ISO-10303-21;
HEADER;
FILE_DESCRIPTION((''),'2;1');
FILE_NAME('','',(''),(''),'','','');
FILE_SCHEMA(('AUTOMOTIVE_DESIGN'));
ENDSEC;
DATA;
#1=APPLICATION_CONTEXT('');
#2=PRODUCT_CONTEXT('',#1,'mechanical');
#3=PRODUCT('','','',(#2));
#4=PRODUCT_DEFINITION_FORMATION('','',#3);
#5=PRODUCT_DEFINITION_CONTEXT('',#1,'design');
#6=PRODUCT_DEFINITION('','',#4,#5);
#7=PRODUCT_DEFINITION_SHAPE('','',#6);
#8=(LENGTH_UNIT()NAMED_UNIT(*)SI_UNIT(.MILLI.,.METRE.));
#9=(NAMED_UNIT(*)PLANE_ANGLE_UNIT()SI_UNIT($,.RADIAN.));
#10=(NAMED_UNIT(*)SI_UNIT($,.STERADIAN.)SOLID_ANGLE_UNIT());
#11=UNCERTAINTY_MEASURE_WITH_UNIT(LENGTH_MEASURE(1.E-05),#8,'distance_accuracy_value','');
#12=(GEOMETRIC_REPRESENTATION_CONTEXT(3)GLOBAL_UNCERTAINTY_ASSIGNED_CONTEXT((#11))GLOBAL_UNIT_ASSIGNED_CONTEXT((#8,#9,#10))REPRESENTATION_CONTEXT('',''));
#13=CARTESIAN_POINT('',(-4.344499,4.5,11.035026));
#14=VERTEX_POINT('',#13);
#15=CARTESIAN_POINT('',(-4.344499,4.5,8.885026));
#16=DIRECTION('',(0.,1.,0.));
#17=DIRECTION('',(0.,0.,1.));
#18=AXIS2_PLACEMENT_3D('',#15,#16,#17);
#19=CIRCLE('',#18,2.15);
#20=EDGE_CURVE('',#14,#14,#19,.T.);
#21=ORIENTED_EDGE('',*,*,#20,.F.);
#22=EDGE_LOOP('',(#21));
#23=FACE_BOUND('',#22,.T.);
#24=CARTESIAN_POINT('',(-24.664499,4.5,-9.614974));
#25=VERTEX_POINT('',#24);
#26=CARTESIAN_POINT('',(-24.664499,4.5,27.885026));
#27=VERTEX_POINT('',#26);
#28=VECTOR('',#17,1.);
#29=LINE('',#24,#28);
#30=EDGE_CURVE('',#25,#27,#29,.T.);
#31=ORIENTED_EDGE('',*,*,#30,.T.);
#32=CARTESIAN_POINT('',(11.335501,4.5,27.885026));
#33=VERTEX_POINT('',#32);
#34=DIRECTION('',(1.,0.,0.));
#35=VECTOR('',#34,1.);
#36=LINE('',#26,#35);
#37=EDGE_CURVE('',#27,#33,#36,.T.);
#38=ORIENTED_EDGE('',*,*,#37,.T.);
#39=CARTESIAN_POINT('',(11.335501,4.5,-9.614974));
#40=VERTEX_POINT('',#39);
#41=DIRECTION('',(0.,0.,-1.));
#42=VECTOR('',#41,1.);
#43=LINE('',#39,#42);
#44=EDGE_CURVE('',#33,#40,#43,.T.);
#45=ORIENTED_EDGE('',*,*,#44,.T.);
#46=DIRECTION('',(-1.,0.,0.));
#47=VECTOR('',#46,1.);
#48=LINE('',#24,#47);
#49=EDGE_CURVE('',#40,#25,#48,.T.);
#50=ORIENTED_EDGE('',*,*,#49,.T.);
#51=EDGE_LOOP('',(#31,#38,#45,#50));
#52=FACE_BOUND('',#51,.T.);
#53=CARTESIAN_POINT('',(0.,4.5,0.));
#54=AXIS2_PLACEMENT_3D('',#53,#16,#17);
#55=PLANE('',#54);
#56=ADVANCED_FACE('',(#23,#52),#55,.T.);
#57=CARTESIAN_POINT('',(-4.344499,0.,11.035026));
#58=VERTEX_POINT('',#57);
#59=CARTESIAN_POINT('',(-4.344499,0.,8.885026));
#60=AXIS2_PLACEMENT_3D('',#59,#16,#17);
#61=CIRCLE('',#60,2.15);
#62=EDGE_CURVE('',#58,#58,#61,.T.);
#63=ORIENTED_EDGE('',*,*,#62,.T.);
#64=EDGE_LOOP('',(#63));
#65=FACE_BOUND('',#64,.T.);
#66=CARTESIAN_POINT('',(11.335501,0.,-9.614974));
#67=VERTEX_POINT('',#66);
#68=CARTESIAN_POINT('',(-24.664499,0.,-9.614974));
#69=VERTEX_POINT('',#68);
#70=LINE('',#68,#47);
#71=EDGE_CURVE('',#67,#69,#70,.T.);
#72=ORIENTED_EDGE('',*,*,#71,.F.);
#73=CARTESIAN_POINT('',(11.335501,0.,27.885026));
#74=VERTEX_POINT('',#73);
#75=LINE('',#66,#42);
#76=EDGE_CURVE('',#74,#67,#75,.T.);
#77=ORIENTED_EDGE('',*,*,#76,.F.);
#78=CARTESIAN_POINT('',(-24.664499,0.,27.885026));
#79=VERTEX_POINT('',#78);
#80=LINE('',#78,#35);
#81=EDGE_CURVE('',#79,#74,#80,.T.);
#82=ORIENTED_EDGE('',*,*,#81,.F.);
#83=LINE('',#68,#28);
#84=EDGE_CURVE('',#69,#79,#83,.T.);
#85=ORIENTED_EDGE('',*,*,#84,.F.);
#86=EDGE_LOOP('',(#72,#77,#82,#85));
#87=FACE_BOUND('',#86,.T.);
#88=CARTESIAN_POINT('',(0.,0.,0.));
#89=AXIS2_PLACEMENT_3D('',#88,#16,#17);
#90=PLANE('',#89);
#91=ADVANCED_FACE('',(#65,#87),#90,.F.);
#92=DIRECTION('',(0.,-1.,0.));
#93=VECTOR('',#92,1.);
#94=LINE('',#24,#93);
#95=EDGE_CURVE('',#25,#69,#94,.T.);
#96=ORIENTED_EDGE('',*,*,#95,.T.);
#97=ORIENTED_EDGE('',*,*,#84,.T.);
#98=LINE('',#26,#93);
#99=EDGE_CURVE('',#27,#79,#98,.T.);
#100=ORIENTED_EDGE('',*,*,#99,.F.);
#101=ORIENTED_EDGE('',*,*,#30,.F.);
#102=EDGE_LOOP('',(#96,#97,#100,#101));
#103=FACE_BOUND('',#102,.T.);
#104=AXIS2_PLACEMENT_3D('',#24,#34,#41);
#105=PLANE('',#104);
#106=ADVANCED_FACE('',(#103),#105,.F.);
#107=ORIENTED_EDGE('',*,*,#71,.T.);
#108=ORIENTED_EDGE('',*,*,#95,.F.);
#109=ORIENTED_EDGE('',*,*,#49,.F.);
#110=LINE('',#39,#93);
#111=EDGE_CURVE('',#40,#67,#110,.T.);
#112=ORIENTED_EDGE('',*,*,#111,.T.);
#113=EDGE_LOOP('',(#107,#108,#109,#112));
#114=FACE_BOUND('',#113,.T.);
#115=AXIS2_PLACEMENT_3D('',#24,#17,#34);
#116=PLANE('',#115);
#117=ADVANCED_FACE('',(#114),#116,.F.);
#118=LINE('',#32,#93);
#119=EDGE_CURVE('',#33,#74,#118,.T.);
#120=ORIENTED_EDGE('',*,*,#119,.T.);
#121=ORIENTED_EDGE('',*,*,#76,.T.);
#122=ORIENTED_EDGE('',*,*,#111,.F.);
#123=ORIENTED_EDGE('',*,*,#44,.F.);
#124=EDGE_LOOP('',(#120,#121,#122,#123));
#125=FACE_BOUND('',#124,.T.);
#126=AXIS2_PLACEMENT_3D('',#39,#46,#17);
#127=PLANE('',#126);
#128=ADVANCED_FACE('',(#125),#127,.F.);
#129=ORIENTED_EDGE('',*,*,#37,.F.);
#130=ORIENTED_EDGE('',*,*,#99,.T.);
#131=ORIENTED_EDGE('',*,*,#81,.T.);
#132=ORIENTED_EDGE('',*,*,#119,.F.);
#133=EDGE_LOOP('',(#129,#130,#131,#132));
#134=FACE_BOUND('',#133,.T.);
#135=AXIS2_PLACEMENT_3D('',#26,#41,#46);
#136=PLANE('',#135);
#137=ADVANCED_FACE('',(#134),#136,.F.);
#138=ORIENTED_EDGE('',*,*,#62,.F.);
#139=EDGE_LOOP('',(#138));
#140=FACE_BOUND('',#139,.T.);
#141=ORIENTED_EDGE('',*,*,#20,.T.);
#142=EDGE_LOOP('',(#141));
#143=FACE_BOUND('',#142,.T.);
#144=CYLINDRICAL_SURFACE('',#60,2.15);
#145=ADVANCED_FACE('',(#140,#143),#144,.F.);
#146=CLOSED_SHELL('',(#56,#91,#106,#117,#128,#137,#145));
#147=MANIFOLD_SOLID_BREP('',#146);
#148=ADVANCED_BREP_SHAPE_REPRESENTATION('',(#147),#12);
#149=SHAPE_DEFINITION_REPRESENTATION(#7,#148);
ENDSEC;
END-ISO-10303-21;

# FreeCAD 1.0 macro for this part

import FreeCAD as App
import Part
import Sketcher

V = App.Vector

doc = App.newDocument("Part")
body = doc.addObject("PartDesign::Body", "Body")

# Sketch on XZ plane
sketch1 = doc.addObject("Sketcher::SketchObject", "Sketch")
body.addObject(sketch1)
sketch1.AttachmentSupport = (doc.XZ_Plane, [""])
sketch1.MapMode = "FlatFace"
sketch1.addGeometry([
    Part.LineSegment(V(-25, -10, 0), V(-25, 28, 0)),
    Part.LineSegment(V(-25, 28, 0), V(11, 28, 0)),
    Part.LineSegment(V(11, 28, 0), V(11, -10, 0)),
    Part.LineSegment(V(11, -10, 0), V(-25, -10, 0)),
], False)
sketch1.addConstraint([
    Sketcher.Constraint("Coincident", 0, 2, 1, 1),
    Sketcher.Constraint("Coincident", 1, 2, 2, 1),
    Sketcher.Constraint("Coincident", 2, 2, 3, 1),
    Sketcher.Constraint("Coincident", 3, 2, 0, 1),
    Sketcher.Constraint("Vertical", 0),
    Sketcher.Constraint("Horizontal", 1),
    Sketcher.Constraint("Vertical", 2),
    Sketcher.Constraint("Horizontal", 3),
    Sketcher.Constraint("DistanceX", 1, 1, 1, 2, 36.0),
    Sketcher.Constraint("DistanceY", 0, 1, 0, 2, 37.5),
    Sketcher.Constraint("DistanceX", 0, 2, -1, 1, 24.664499),
    Sketcher.Constraint("DistanceY", -1, 1, 0, 2, 27.885026),
])
pad1 = doc.addObject("PartDesign::Pad", "Pad")
body.addObject(pad1)
pad1.Profile = sketch1
pad1.Length = 4.5
pad1.Reversed = True

# Sketch on XZ plane
sketch2 = doc.addObject("Sketcher::SketchObject", "Sketch001")
body.addObject(sketch2)
sketch2.AttachmentSupport = (doc.XZ_Plane, [""])
sketch2.MapMode = "FlatFace"
sketch2.AttachmentOffset = App.Placement(V(0, 0, -4.5), App.Rotation())
sketch2.addGeometry(Part.Circle(V(-4.3, 8.9, 0), V(0, 0, 1), 2.1), False)
sketch2.addConstraint([
    Sketcher.Constraint("Diameter", 0, 4.3),
    Sketcher.Constraint("DistanceX", 0, 3, -1, 1, 4.344499),
    Sketcher.Constraint("DistanceY", -1, 1, 0, 3, 8.885026),
])
pocket1 = doc.addObject("PartDesign::Pocket", "Pocket")
body.addObject(pocket1)
pocket1.Profile = sketch2
pocket1.Type = "ThroughAll"
pocket1.Reversed = True

doc.recompute()
